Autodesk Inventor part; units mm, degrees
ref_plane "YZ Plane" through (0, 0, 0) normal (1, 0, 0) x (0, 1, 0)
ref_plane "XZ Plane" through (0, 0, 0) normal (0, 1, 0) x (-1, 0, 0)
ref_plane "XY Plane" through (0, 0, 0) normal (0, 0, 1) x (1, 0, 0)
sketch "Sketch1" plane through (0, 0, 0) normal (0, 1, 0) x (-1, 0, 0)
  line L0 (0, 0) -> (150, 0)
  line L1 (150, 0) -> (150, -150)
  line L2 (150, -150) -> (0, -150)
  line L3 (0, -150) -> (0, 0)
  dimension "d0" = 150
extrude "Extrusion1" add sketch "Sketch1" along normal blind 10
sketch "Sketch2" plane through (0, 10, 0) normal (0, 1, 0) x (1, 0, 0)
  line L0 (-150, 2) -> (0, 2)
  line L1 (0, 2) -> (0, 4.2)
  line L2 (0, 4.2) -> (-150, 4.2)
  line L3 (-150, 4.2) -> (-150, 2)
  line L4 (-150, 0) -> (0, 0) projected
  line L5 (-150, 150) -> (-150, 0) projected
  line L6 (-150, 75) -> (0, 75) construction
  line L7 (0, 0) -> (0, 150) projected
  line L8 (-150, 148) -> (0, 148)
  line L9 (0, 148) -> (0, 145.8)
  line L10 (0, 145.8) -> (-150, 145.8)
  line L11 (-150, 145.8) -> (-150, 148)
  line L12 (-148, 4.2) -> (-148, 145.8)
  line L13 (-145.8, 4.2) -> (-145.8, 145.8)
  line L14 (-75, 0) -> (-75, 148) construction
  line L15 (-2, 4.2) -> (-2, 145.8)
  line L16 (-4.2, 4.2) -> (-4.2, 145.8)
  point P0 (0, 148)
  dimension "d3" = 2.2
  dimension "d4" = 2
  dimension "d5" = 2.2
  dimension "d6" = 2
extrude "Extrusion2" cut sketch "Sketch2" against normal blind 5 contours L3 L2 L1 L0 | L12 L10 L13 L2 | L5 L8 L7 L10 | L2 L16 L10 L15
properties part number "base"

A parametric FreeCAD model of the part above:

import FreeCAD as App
import Part
import Sketcher
from FreeCAD import Vector
Q = App.Units.Quantity

doc = App.newDocument("Part")
params = doc.addObject("Spreadsheet::Sheet", "Params")
for row, (alias, value) in enumerate([
    ("sketch1_width", "150 mm"),
    ("pad1_length", "10 mm"),
    ("sketch2_width", "2 mm"),
    ("sketch2_height", "2.2 mm"),
    ("sketch2_width2", "150 mm"),
    ("pocket1_length", "5 mm"),
], start=1):
    params.set(f"A{row}", alias)
    params.set(f"B{row}", "=" + value)
    params.setAlias(f"B{row}", alias)

body = doc.addObject("PartDesign::Body", "Body")

# Sketch on XZ plane
sketch1 = body.newObject("Sketcher::SketchObject", "Sketch")
sketch1.AttachmentSupport = (doc.getObject("XZ_Plane"), [""])
sketch1.MapMode = "FlatFace"
sketch1.addGeometry(Part.LineSegment(Vector(-150, 0, 0), Vector(0, 0, 0)), False)
sketch1.addGeometry(Part.LineSegment(Vector(0, 0, 0), Vector(0, -150, 0)), False)
sketch1.addGeometry(Part.LineSegment(Vector(0, -150, 0), Vector(-150, -150, 0)), False)
sketch1.addGeometry(Part.LineSegment(Vector(-150, -150, 0), Vector(-150, 0, 0)), False)
sketch1.addConstraint(Sketcher.Constraint("Coincident", 0, 2, 1, 1))
sketch1.addConstraint(Sketcher.Constraint("Coincident", 1, 2, 2, 1))
sketch1.addConstraint(Sketcher.Constraint("Coincident", 2, 2, 3, 1))
sketch1.addConstraint(Sketcher.Constraint("Coincident", 3, 2, 0, 1))
sketch1.addConstraint(Sketcher.Constraint("Horizontal", 0))
sketch1.addConstraint(Sketcher.Constraint("Vertical", 1))
sketch1.addConstraint(Sketcher.Constraint("Horizontal", 2))
sketch1.addConstraint(Sketcher.Constraint("Vertical", 3))
sketch1.addConstraint(Sketcher.Constraint("Coincident", 0, 2, -1, 1))
sketch1.addConstraint(Sketcher.Constraint("Equal", 2, 1))
sketch1.addConstraint(Sketcher.Constraint("DistanceX", 0, 1, 0, 2, Q("150 mm")))
sketch1.setExpression("Constraints[10]", "Params.sketch1_width")
pad1 = body.newObject("PartDesign::Pad", "Pad")
pad1.Profile = sketch1
pad1.setExpression("Length", "Params.pad1_length")
pad1.Reversed = True

# Sketch on XZ plane
sketch2 = body.newObject("Sketcher::SketchObject", "Sketch001")
sketch2.AttachmentSupport = (doc.getObject("XZ_Plane"), [""])
sketch2.MapMode = "FlatFace"
sketch2.AttachmentOffset = App.Placement(Vector(0, 0, -10), App.Rotation())
sketch2.addGeometry(Part.LineSegment(Vector(-150, -4.2, 0), Vector(-150, -2, 0)), False)
sketch2.addGeometry(Part.LineSegment(Vector(-150, -2, 0), Vector(0, -2, 0)), False)
sketch2.addGeometry(Part.LineSegment(Vector(0, -2, 0), Vector(0, -4.2, 0)), False)
sketch2.addGeometry(Part.LineSegment(Vector(0, -4.2, 0), Vector(-2, -4.2, 0)), False)
sketch2.addGeometry(Part.LineSegment(Vector(-2, -4.2, 0), Vector(-2, -145.8, 0)), False)
sketch2.addGeometry(Part.LineSegment(Vector(-2, -145.8, 0), Vector(0, -145.8, 0)), False)
sketch2.addGeometry(Part.LineSegment(Vector(0, -145.8, 0), Vector(0, -148, 0)), False)
sketch2.addGeometry(Part.LineSegment(Vector(0, -148, 0), Vector(-150, -148, 0)), False)
sketch2.addGeometry(Part.LineSegment(Vector(-150, -148, 0), Vector(-150, -145.8, 0)), False)
sketch2.addGeometry(Part.LineSegment(Vector(-150, -145.8, 0), Vector(-148, -145.8, 0)), False)
sketch2.addGeometry(Part.LineSegment(Vector(-148, -145.8, 0), Vector(-148, -4.2, 0)), False)
sketch2.addGeometry(Part.LineSegment(Vector(-148, -4.2, 0), Vector(-150, -4.2, 0)), False)
sketch2.addGeometry(Part.LineSegment(Vector(-4.2, -4.2, 0), Vector(-145.8, -4.2, 0)), False)
sketch2.addGeometry(Part.LineSegment(Vector(-145.8, -4.2, 0), Vector(-145.8, -145.8, 0)), False)
sketch2.addGeometry(Part.LineSegment(Vector(-145.8, -145.8, 0), Vector(-4.2, -145.8, 0)), False)
sketch2.addGeometry(Part.LineSegment(Vector(-4.2, -145.8, 0), Vector(-4.2, -4.2, 0)), False)
sketch2.addConstraint(Sketcher.Constraint("Coincident", 0, 2, 1, 1))
sketch2.addConstraint(Sketcher.Constraint("Coincident", 1, 2, 2, 1))
sketch2.addConstraint(Sketcher.Constraint("Coincident", 2, 2, 3, 1))
sketch2.addConstraint(Sketcher.Constraint("Coincident", 3, 2, 4, 1))
sketch2.addConstraint(Sketcher.Constraint("Coincident", 4, 2, 5, 1))
sketch2.addConstraint(Sketcher.Constraint("Coincident", 5, 2, 6, 1))
sketch2.addConstraint(Sketcher.Constraint("Coincident", 6, 2, 7, 1))
sketch2.addConstraint(Sketcher.Constraint("Coincident", 7, 2, 8, 1))
sketch2.addConstraint(Sketcher.Constraint("Coincident", 8, 2, 9, 1))
sketch2.addConstraint(Sketcher.Constraint("Coincident", 9, 2, 10, 1))
sketch2.addConstraint(Sketcher.Constraint("Coincident", 10, 2, 11, 1))
sketch2.addConstraint(Sketcher.Constraint("Coincident", 11, 2, 0, 1))
sketch2.addConstraint(Sketcher.Constraint("Coincident", 12, 2, 13, 1))
sketch2.addConstraint(Sketcher.Constraint("Coincident", 13, 2, 14, 1))
sketch2.addConstraint(Sketcher.Constraint("Coincident", 14, 2, 15, 1))
sketch2.addConstraint(Sketcher.Constraint("Coincident", 15, 2, 12, 1))
sketch2.addConstraint(Sketcher.Constraint("Vertical", 0))
sketch2.addConstraint(Sketcher.Constraint("Horizontal", 1))
sketch2.addConstraint(Sketcher.Constraint("Vertical", 2))
sketch2.addConstraint(Sketcher.Constraint("Horizontal", 3))
sketch2.addConstraint(Sketcher.Constraint("Vertical", 4))
sketch2.addConstraint(Sketcher.Constraint("Horizontal", 5))
sketch2.addConstraint(Sketcher.Constraint("Vertical", 6))
sketch2.addConstraint(Sketcher.Constraint("Horizontal", 7))
sketch2.addConstraint(Sketcher.Constraint("Vertical", 8))
sketch2.addConstraint(Sketcher.Constraint("Horizontal", 9))
sketch2.addConstraint(Sketcher.Constraint("Vertical", 10))
sketch2.addConstraint(Sketcher.Constraint("Horizontal", 11))
sketch2.addConstraint(Sketcher.Constraint("Horizontal", 12))
sketch2.addConstraint(Sketcher.Constraint("Vertical", 13))
sketch2.addConstraint(Sketcher.Constraint("Horizontal", 14))
sketch2.addConstraint(Sketcher.Constraint("Vertical", 15))
sketch2.addConstraint(Sketcher.Constraint("PointOnObject", 1, 2, -2))
sketch2.addConstraint(Sketcher.Constraint("PointOnObject", 5, 2, -2))
sketch2.addConstraint(Sketcher.Constraint("Horizontal", 5, 2, 8, 2))
sketch2.addConstraint(Sketcher.Constraint("Horizontal", 3, 2, 10, 2))
sketch2.addConstraint(Sketcher.Constraint("Horizontal", 11, 2, 12, 2))
sketch2.addConstraint(Sketcher.Constraint("Horizontal", 9, 2, 13, 2))
sketch2.addConstraint(Sketcher.Constraint("Vertical", 0, 2, 7, 2))
sketch2.addConstraint(Sketcher.Constraint("Equal", 5, 9))
sketch2.addConstraint(Sketcher.Constraint("Equal", 14, 4))
sketch2.addConstraint(Sketcher.Constraint("Equal", 2, 6))
sketch2.addConstraint(Sketcher.Constraint("DistanceX", 3, 2, 3, 1, Q("2 mm")))
sketch2.addConstraint(Sketcher.Constraint("DistanceY", 0, 1, 0, 2, Q("2.2 mm")))
sketch2.addConstraint(Sketcher.Constraint("DistanceY", 0, 2, -1, 1, Q("2 mm")))
sketch2.addConstraint(Sketcher.Constraint("DistanceX", 10, 2, 12, 2, Q("2.2 mm")))
sketch2.addConstraint(Sketcher.Constraint("DistanceX", 14, 2, 4, 2, Q("2.2 mm")))
sketch2.addConstraint(Sketcher.Constraint("DistanceX", 1, 1, 1, 2, Q("150 mm")))
sketch2.setExpression("Constraints[42]", "Params.sketch2_width")
sketch2.setExpression("Constraints[43]", "Params.sketch2_height")
sketch2.setExpression("Constraints[47]", "Params.sketch2_width2")
pocket1 = body.newObject("PartDesign::Pocket", "Pocket")
pocket1.Profile = sketch2
pocket1.setExpression("Length", "Params.pocket1_length")
pocket1.Reversed = True

doc.recompute()
